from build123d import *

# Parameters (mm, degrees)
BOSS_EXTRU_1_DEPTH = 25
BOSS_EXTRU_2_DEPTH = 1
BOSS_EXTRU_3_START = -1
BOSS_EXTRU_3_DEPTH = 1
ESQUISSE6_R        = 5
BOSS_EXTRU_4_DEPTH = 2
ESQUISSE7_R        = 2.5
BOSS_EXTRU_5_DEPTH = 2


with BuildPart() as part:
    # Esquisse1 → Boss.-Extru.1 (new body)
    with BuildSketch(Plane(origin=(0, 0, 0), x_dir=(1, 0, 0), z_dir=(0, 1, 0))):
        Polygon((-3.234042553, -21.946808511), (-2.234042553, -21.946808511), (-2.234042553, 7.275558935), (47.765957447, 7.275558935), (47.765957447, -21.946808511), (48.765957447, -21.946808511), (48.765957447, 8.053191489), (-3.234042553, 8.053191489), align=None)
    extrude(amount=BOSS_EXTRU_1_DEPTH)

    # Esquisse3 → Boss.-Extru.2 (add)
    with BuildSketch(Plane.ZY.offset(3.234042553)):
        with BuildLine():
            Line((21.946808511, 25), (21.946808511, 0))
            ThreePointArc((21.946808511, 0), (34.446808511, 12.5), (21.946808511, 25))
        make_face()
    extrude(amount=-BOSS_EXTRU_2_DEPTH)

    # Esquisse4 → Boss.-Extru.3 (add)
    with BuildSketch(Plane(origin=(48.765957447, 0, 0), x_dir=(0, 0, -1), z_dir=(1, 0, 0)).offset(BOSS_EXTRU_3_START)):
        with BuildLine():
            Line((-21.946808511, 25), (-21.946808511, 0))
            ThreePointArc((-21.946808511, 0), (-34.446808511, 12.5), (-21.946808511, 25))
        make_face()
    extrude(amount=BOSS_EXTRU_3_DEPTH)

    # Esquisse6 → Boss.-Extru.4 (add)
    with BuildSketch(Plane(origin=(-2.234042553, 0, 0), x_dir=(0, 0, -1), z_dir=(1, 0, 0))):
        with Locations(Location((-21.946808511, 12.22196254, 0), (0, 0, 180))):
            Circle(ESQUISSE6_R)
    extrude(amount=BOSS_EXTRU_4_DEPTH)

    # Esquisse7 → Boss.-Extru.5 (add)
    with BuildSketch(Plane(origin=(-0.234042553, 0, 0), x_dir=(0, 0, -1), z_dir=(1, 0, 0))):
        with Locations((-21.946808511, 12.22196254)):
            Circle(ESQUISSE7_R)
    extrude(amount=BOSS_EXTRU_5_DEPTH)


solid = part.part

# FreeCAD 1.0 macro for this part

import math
import FreeCAD as App
import Part
import Sketcher


def add_polygon(sketch, points):
    """Adds a closed chain of lines whose ends are joined by coincident constraints."""
    first, n = sketch.GeometryCount, len(points)
    for a, b in zip(points, points[1:] + points[:1]):
        sketch.addGeometry(Part.LineSegment(App.Vector(*a, 0), App.Vector(*b, 0)), False)
    for i in range(n):
        sketch.addConstraint(Sketcher.Constraint("Coincident", first + i, 2, first + (i + 1) % n, 1))

doc = App.newDocument("Part")
body = doc.addObject("PartDesign::Body", "Body")

# Sketch on XZ plane
sketch1 = body.newObject("Sketcher::SketchObject", "Sketch")
sketch1.AttachmentSupport = (doc.getObject("XZ_Plane"), [""])
sketch1.MapMode = "FlatFace"
add_polygon(sketch1, [(-3.2, 21.9), (-2.2, 21.9), (-2.2, -7.3), (47.8, -7.3), (47.8, 21.9), (48.8, 21.9), (48.8, -8.1), (-3.2, -8.1)])  # lines 0-7
sketch1.addConstraint([
    Sketcher.Constraint("Horizontal", 0),
    Sketcher.Constraint("Vertical", 1),
    Sketcher.Constraint("Horizontal", 2),
    Sketcher.Constraint("Vertical", 3),
    Sketcher.Constraint("Horizontal", 4),
    Sketcher.Constraint("Vertical", 5),
    Sketcher.Constraint("Horizontal", 6),
    Sketcher.Constraint("Vertical", 7),
    Sketcher.Constraint("Horizontal", 0, 2, 3, 2),
    Sketcher.Constraint("Equal", 0, 4),
    Sketcher.Constraint("DistanceX", 0, 1, 0, 2, 1.0),
    Sketcher.Constraint("DistanceX", 2, 1, 2, 2, 50.0),
    Sketcher.Constraint("DistanceY", 5, 2, 5, 1, 30.0),
    Sketcher.Constraint("DistanceY", 1, 2, 1, 1, 29.222367),
    Sketcher.Constraint("DistanceY", -1, 1, 0, 2, 21.946809),
    Sketcher.Constraint("DistanceX", 0, 2, -1, 1, 2.234043),
])
pad1 = body.newObject("PartDesign::Pad", "Pad")
pad1.Profile = sketch1
pad1.Length = 25
pad1.Reversed = True

# Sketch on YZ plane
sketch2 = body.newObject("Sketcher::SketchObject", "Sketch001")
sketch2.AttachmentSupport = (doc.getObject("YZ_Plane"), [""])
sketch2.MapMode = "FlatFace"
sketch2.AttachmentOffset = App.Placement(App.Vector(0, 0, -3.234043), App.Rotation())
sketch2.addGeometry([
    Part.LineSegment(App.Vector(25, 22, 0), App.Vector(0, 22, 0)),
    Part.ArcOfCircle(Part.Circle(App.Vector(12, 22, 0), App.Vector(0, 0, 1), 12), math.radians(0), math.radians(180)),
], False)
sketch2.addConstraint([
    Sketcher.Constraint("Coincident", 0, 1, 1, 1),
    Sketcher.Constraint("Coincident", 1, 2, 0, 2),
    Sketcher.Constraint("Horizontal", 0),
    Sketcher.Constraint("PointOnObject", 1, 2, -2),
    Sketcher.Constraint("Horizontal", 1, 3, 0, 1),
    Sketcher.Constraint("Radius", 1, 12.5),
    Sketcher.Constraint("DistanceY", -1, 1, 1, 3, 21.946809),
])
pad2 = body.newObject("PartDesign::Pad", "Pad001")
pad2.Profile = sketch2
pad2.Length = 1

# Sketch on YZ plane
sketch3 = body.newObject("Sketcher::SketchObject", "Sketch002")
sketch3.AttachmentSupport = (doc.getObject("YZ_Plane"), [""])
sketch3.MapMode = "FlatFace"
sketch3.AttachmentOffset = App.Placement(App.Vector(0, 0, 47.765957), App.Rotation())
sketch3.addGeometry([
    Part.LineSegment(App.Vector(0, 22, 0), App.Vector(25, 22, 0)),
    Part.ArcOfCircle(Part.Circle(App.Vector(12, 22, 0), App.Vector(0, 0, 1), 12), math.radians(0), math.radians(180)),
], False)
sketch3.addConstraint([
    Sketcher.Constraint("Coincident", 0, 1, 1, 2),
    Sketcher.Constraint("Coincident", 1, 1, 0, 2),
    Sketcher.Constraint("Horizontal", 0),
    Sketcher.Constraint("PointOnObject", 0, 1, -2),
    Sketcher.Constraint("Horizontal", 1, 3, 0, 1),
    Sketcher.Constraint("Radius", 1, 12.5),
    Sketcher.Constraint("DistanceY", -1, 1, 1, 3, 21.946809),
])
pad3 = body.newObject("PartDesign::Pad", "Pad002")
pad3.Profile = sketch3
pad3.Length = 1

# Sketch on YZ plane
sketch4 = body.newObject("Sketcher::SketchObject", "Sketch003")
sketch4.AttachmentSupport = (doc.getObject("YZ_Plane"), [""])
sketch4.MapMode = "FlatFace"
sketch4.AttachmentOffset = App.Placement(App.Vector(0, 0, -2.234043), App.Rotation())
sketch4.addGeometry(Part.Circle(App.Vector(12, 22, 0), App.Vector(0, 0, 1), 5), False)
sketch4.addConstraint([
    Sketcher.Constraint("Diameter", 0, 10.0),
    Sketcher.Constraint("DistanceY", -1, 1, 0, 3, 21.946809),
    Sketcher.Constraint("DistanceX", -1, 1, 0, 3, 12.221963),
])
pad4 = body.newObject("PartDesign::Pad", "Pad003")
pad4.Profile = sketch4
pad4.Length = 2

# Sketch on YZ plane
sketch5 = body.newObject("Sketcher::SketchObject", "Sketch004")
sketch5.AttachmentSupport = (doc.getObject("YZ_Plane"), [""])
sketch5.MapMode = "FlatFace"
sketch5.AttachmentOffset = App.Placement(App.Vector(0, 0, -0.234043), App.Rotation())
sketch5.addGeometry(Part.Circle(App.Vector(12.2, 21.9, 0), App.Vector(0, 0, 1), 2.5), False)
sketch5.addConstraint([
    Sketcher.Constraint("Diameter", 0, 5.0),
    Sketcher.Constraint("DistanceY", -1, 1, 0, 3, 21.946809),
    Sketcher.Constraint("DistanceX", -1, 1, 0, 3, 12.221963),
])
pad5 = body.newObject("PartDesign::Pad", "Pad004")
pad5.Profile = sketch5
pad5.Length = 2

doc.recompute()
